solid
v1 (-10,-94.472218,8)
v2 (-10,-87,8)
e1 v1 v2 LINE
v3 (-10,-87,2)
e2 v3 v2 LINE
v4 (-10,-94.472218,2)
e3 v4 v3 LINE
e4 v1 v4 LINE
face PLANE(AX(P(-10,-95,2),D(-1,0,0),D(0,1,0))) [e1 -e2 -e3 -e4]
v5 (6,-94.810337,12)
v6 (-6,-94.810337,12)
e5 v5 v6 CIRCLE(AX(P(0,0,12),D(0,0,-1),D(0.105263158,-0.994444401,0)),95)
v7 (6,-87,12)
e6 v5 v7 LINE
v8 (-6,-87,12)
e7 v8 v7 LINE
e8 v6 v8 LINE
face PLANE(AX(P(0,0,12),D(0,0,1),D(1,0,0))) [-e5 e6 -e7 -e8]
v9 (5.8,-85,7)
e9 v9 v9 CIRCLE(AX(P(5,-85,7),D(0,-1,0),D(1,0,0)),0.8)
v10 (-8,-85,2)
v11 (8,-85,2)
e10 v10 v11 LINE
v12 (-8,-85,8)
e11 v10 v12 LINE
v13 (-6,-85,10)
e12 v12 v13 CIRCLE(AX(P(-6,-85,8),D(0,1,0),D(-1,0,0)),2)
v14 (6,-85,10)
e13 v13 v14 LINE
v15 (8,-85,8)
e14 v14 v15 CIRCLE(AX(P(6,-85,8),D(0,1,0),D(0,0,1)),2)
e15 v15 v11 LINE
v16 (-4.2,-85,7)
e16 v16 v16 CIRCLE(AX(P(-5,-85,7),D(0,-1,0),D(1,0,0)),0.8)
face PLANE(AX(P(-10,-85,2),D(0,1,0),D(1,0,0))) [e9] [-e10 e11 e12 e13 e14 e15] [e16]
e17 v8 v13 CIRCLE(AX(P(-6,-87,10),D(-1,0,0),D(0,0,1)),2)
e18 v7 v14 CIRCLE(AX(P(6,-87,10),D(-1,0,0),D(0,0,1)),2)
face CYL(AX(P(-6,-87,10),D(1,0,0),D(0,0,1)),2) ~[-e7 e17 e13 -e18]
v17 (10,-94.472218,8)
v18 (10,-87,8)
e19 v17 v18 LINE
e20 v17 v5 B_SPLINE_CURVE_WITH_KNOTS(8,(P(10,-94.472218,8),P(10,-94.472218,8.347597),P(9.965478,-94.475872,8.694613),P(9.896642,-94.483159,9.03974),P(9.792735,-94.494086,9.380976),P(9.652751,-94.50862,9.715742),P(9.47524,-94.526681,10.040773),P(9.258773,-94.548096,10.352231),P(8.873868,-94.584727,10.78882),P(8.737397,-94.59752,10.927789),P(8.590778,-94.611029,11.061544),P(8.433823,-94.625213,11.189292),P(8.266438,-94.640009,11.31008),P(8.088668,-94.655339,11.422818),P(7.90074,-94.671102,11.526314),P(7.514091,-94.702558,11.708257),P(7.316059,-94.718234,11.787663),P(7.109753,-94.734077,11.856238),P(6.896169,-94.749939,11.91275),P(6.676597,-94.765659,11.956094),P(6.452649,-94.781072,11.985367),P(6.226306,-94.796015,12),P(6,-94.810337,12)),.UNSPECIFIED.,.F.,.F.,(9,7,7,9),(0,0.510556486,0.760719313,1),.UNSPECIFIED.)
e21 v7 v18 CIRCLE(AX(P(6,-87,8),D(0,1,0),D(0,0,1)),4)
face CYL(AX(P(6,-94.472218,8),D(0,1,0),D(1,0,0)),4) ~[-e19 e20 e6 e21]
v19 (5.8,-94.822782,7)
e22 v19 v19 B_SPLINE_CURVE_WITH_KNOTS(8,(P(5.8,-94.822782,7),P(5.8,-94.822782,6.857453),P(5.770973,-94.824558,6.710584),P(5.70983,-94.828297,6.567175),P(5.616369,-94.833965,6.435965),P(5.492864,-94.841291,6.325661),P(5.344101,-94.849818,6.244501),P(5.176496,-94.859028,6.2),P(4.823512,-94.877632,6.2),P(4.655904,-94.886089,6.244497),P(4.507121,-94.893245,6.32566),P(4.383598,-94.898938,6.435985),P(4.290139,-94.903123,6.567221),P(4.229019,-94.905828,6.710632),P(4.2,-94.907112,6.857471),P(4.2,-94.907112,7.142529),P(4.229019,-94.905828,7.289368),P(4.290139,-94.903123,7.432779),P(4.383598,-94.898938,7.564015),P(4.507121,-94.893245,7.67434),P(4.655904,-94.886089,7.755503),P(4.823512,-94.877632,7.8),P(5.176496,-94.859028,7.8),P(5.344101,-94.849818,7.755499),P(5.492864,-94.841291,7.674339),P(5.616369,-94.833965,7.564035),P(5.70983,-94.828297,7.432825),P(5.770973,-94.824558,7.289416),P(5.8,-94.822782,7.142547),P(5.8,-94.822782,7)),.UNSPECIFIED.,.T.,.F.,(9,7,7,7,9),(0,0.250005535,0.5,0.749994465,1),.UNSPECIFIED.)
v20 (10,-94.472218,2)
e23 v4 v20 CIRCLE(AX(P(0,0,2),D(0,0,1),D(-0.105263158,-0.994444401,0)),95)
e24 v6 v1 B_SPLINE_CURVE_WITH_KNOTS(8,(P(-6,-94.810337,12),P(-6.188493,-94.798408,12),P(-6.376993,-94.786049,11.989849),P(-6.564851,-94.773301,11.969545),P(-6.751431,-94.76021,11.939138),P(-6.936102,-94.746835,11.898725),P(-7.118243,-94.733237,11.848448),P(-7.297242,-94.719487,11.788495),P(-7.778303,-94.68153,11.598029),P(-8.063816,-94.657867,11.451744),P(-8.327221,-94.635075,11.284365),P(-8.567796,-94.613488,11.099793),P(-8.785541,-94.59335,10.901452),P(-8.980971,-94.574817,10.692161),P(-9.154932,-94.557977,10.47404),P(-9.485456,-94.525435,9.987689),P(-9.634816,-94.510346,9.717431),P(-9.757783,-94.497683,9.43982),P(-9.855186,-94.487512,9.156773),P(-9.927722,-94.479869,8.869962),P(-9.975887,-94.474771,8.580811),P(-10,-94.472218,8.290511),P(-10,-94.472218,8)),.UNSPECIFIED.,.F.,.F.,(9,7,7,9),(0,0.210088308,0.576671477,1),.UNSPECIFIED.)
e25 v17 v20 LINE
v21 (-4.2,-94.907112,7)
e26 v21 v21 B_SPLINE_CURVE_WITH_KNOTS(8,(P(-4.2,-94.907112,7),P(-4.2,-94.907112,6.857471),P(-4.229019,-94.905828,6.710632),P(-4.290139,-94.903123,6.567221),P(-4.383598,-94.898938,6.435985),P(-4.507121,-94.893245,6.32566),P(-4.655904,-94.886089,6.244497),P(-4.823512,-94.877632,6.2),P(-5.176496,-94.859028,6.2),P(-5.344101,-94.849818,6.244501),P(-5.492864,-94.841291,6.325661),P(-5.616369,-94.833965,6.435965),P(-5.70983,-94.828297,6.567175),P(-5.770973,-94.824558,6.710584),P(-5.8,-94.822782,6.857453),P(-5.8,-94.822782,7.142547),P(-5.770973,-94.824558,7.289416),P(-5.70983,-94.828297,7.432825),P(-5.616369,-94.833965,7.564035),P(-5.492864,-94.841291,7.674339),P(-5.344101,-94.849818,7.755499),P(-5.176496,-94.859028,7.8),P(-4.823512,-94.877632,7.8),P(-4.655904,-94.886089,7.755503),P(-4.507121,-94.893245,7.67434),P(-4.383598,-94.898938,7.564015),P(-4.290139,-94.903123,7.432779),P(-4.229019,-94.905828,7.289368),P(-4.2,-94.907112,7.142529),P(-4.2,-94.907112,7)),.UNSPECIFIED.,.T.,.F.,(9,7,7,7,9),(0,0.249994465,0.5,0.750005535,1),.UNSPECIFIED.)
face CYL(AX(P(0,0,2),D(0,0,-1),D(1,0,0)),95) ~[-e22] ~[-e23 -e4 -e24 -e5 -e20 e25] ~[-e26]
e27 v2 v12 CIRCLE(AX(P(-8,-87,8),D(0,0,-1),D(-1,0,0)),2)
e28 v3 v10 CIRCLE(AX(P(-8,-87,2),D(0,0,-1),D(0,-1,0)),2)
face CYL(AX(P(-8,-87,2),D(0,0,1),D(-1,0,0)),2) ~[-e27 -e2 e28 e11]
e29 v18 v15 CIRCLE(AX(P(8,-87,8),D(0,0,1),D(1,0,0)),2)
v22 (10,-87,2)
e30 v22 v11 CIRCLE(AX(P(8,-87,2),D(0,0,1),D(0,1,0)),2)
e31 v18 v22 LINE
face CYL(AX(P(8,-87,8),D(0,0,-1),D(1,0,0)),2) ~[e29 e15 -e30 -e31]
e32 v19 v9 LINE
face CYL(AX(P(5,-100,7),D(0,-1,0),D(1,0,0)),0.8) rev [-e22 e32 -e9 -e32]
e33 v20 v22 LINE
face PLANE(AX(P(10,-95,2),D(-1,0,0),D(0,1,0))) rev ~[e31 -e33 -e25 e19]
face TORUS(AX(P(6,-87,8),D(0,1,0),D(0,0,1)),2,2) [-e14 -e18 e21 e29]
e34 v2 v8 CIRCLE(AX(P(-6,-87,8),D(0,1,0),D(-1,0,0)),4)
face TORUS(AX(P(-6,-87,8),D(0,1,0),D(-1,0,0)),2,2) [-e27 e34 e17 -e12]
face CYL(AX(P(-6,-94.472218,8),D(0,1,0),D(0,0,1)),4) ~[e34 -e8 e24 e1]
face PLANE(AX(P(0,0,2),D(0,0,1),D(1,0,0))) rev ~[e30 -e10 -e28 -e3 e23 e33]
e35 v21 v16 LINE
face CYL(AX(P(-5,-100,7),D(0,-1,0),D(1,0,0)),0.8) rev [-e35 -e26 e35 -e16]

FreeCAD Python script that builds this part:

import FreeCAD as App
import Part
import Sketcher

V = App.Vector


def edges_at(feature, points):
    """Names of the edges that pass closest to the given points."""
    edges = feature.Shape.Edges
    near = lambda p: min(range(len(edges)), key=lambda i: edges[i].distToShape(Part.Vertex(*p))[0])
    return sorted({f"Edge{near(p) + 1}" for p in points})


def add_polygon(sketch, points):
    """Adds a closed chain of lines whose ends are joined by coincident constraints."""
    first, n = sketch.GeometryCount, len(points)
    for a, b in zip(points, points[1:] + points[:1]):
        sketch.addGeometry(Part.LineSegment(App.Vector(*a, 0), App.Vector(*b, 0)), False)
    for i in range(n):
        sketch.addConstraint(Sketcher.Constraint("Coincident", first + i, 2, first + (i + 1) % n, 1))

doc = App.newDocument("Part")
body = doc.addObject("PartDesign::Body", "Body")

sketch1 = doc.addObject("Sketcher::SketchObject", "Sketch")
body.addObject(sketch1)
sketch1.AttachmentSupport = (doc.XZ_Plane, [""])
sketch1.MapMode = "FlatFace"
sketch1.AttachmentOffset = App.Placement(V(0, 0, 100), App.Rotation())
sketch1.addGeometry(Part.Circle(V(5, 5, 0), V(0, 0, 1), 0.8), False)
sketch1.addConstraint([
    Sketcher.Constraint("Diameter", 0, 1.6),
    Sketcher.Constraint("DistanceX", -1, 1, 0, 3, 5.0),
    Sketcher.Constraint("DistanceY", -1, 1, 0, 3, 5.0),
])
pad1 = doc.addObject("PartDesign::Pad", "Pad")
body.addObject(pad1)
pad1.Profile = sketch1
pad1.Length = 20
pad1.Reversed = True
body2 = doc.addObject("PartDesign::Body", "Body001")
body2.AllowCompound = True

sketch2 = doc.addObject("Sketcher::SketchObject", "Sketch001")
body2.addObject(sketch2)
sketch2.AttachmentSupport = (doc.getObject("XZ_Plane001"), [""])
sketch2.MapMode = "FlatFace"
sketch2.AttachmentOffset = App.Placement(V(0, 0, 100), App.Rotation())
sketch2.addGeometry(Part.Circle(V(-5, 5, 0), V(0, 0, 1), 0.8), False)
sketch2.addConstraint([
    Sketcher.Constraint("Diameter", 0, 1.6),
    Sketcher.Constraint("DistanceX", 0, 3, -1, 1, 5.0),
    Sketcher.Constraint("DistanceY", -1, 1, 0, 3, 5.0),
])
pad2 = doc.addObject("PartDesign::Pad", "Pad001")
body2.addObject(pad2)
pad2.Profile = sketch2
pad2.Length = 20
pad2.Reversed = True
doc.recompute()

boolean = doc.addObject("PartDesign::Boolean", "Boolean")
body2.addObject(boolean)
boolean.Type = "Fuse"
boolean.addObjects([body])
body3 = doc.addObject("PartDesign::Body", "Body002")

sketch3 = doc.addObject("Sketcher::SketchObject", "Sketch002")
body3.addObject(sketch3)
sketch3.AttachmentSupport = (doc.getObject("XY_Plane002"), [""])
sketch3.MapMode = "FlatFace"
add_polygon(sketch3, [(-10, -85), (-10, -95), (10, -95), (10, -85)])
sketch3.addConstraint([
    Sketcher.Constraint("Vertical", 0),
    Sketcher.Constraint("Horizontal", 1),
    Sketcher.Constraint("Vertical", 2),
    Sketcher.Constraint("Horizontal", 3),
    Sketcher.Constraint("DistanceX", 1, 1, 1, 2, 20.0),
    Sketcher.Constraint("DistanceY", 0, 2, 0, 1, 10.0),
    Sketcher.Constraint("DistanceX", 0, 2, -1, 1, 10.0),
    Sketcher.Constraint("DistanceY", 0, 2, -1, 1, 95.0),
])
pad3 = doc.addObject("PartDesign::Pad", "Pad002")
body3.addObject(pad3)
pad3.Profile = sketch3
pad3.Length = 10
body4 = doc.addObject("PartDesign::Body", "Body003")

sketch4 = doc.addObject("Sketcher::SketchObject", "Sketch003")
body4.addObject(sketch4)
sketch4.AttachmentSupport = (doc.getObject("XY_Plane003"), [""])
sketch4.MapMode = "FlatFace"
sketch4.addGeometry(Part.Circle(V(0, 0, 0), V(0, 0, 1), 95), False)
sketch4.addConstraint([
    Sketcher.Constraint("Coincident", 0, 3, -1, 1),
    Sketcher.Constraint("Diameter", 0, 190.0),
])
pad4 = doc.addObject("PartDesign::Pad", "Pad003")
body4.addObject(pad4)
pad4.Profile = sketch4
pad4.Length = 10
doc.recompute()

boolean2 = doc.addObject("PartDesign::Boolean", "Boolean001")
body4.addObject(boolean2)
boolean2.Type = "Common"
boolean2.addObjects([body3])
doc.recompute()

fillet = doc.addObject("PartDesign::Fillet", "Fillet")
body4.addObject(fillet)
fillet.Base = (boolean2, edges_at(boolean2, [(-10, -89.736, 10), (10, -89.736, 10)]))
fillet.Radius = 4
doc.recompute()

fillet2 = doc.addObject("PartDesign::Fillet", "Fillet001")
body4.addObject(fillet2)
fillet2.Base = (fillet, edges_at(fillet, [(0, -85, 10)]))
fillet2.Radius = 2
doc.recompute()

boolean3 = doc.addObject("PartDesign::Boolean", "Boolean002")
body4.addObject(boolean3)
boolean3.Type = "Cut"
boolean3.addObjects([body2])
body5 = doc.addObject("PartDesign::Body", "Body004")
doc.recompute()

body4.Placement = App.Placement(V(0, 0, 2), App.Rotation(V(0, 0, 1), 0))
boolean4 = doc.addObject("PartDesign::Boolean", "Boolean003")
body5.addObject(boolean4)
boolean4.Type = "Fuse"
boolean4.addObjects([body4])

doc.recompute()
